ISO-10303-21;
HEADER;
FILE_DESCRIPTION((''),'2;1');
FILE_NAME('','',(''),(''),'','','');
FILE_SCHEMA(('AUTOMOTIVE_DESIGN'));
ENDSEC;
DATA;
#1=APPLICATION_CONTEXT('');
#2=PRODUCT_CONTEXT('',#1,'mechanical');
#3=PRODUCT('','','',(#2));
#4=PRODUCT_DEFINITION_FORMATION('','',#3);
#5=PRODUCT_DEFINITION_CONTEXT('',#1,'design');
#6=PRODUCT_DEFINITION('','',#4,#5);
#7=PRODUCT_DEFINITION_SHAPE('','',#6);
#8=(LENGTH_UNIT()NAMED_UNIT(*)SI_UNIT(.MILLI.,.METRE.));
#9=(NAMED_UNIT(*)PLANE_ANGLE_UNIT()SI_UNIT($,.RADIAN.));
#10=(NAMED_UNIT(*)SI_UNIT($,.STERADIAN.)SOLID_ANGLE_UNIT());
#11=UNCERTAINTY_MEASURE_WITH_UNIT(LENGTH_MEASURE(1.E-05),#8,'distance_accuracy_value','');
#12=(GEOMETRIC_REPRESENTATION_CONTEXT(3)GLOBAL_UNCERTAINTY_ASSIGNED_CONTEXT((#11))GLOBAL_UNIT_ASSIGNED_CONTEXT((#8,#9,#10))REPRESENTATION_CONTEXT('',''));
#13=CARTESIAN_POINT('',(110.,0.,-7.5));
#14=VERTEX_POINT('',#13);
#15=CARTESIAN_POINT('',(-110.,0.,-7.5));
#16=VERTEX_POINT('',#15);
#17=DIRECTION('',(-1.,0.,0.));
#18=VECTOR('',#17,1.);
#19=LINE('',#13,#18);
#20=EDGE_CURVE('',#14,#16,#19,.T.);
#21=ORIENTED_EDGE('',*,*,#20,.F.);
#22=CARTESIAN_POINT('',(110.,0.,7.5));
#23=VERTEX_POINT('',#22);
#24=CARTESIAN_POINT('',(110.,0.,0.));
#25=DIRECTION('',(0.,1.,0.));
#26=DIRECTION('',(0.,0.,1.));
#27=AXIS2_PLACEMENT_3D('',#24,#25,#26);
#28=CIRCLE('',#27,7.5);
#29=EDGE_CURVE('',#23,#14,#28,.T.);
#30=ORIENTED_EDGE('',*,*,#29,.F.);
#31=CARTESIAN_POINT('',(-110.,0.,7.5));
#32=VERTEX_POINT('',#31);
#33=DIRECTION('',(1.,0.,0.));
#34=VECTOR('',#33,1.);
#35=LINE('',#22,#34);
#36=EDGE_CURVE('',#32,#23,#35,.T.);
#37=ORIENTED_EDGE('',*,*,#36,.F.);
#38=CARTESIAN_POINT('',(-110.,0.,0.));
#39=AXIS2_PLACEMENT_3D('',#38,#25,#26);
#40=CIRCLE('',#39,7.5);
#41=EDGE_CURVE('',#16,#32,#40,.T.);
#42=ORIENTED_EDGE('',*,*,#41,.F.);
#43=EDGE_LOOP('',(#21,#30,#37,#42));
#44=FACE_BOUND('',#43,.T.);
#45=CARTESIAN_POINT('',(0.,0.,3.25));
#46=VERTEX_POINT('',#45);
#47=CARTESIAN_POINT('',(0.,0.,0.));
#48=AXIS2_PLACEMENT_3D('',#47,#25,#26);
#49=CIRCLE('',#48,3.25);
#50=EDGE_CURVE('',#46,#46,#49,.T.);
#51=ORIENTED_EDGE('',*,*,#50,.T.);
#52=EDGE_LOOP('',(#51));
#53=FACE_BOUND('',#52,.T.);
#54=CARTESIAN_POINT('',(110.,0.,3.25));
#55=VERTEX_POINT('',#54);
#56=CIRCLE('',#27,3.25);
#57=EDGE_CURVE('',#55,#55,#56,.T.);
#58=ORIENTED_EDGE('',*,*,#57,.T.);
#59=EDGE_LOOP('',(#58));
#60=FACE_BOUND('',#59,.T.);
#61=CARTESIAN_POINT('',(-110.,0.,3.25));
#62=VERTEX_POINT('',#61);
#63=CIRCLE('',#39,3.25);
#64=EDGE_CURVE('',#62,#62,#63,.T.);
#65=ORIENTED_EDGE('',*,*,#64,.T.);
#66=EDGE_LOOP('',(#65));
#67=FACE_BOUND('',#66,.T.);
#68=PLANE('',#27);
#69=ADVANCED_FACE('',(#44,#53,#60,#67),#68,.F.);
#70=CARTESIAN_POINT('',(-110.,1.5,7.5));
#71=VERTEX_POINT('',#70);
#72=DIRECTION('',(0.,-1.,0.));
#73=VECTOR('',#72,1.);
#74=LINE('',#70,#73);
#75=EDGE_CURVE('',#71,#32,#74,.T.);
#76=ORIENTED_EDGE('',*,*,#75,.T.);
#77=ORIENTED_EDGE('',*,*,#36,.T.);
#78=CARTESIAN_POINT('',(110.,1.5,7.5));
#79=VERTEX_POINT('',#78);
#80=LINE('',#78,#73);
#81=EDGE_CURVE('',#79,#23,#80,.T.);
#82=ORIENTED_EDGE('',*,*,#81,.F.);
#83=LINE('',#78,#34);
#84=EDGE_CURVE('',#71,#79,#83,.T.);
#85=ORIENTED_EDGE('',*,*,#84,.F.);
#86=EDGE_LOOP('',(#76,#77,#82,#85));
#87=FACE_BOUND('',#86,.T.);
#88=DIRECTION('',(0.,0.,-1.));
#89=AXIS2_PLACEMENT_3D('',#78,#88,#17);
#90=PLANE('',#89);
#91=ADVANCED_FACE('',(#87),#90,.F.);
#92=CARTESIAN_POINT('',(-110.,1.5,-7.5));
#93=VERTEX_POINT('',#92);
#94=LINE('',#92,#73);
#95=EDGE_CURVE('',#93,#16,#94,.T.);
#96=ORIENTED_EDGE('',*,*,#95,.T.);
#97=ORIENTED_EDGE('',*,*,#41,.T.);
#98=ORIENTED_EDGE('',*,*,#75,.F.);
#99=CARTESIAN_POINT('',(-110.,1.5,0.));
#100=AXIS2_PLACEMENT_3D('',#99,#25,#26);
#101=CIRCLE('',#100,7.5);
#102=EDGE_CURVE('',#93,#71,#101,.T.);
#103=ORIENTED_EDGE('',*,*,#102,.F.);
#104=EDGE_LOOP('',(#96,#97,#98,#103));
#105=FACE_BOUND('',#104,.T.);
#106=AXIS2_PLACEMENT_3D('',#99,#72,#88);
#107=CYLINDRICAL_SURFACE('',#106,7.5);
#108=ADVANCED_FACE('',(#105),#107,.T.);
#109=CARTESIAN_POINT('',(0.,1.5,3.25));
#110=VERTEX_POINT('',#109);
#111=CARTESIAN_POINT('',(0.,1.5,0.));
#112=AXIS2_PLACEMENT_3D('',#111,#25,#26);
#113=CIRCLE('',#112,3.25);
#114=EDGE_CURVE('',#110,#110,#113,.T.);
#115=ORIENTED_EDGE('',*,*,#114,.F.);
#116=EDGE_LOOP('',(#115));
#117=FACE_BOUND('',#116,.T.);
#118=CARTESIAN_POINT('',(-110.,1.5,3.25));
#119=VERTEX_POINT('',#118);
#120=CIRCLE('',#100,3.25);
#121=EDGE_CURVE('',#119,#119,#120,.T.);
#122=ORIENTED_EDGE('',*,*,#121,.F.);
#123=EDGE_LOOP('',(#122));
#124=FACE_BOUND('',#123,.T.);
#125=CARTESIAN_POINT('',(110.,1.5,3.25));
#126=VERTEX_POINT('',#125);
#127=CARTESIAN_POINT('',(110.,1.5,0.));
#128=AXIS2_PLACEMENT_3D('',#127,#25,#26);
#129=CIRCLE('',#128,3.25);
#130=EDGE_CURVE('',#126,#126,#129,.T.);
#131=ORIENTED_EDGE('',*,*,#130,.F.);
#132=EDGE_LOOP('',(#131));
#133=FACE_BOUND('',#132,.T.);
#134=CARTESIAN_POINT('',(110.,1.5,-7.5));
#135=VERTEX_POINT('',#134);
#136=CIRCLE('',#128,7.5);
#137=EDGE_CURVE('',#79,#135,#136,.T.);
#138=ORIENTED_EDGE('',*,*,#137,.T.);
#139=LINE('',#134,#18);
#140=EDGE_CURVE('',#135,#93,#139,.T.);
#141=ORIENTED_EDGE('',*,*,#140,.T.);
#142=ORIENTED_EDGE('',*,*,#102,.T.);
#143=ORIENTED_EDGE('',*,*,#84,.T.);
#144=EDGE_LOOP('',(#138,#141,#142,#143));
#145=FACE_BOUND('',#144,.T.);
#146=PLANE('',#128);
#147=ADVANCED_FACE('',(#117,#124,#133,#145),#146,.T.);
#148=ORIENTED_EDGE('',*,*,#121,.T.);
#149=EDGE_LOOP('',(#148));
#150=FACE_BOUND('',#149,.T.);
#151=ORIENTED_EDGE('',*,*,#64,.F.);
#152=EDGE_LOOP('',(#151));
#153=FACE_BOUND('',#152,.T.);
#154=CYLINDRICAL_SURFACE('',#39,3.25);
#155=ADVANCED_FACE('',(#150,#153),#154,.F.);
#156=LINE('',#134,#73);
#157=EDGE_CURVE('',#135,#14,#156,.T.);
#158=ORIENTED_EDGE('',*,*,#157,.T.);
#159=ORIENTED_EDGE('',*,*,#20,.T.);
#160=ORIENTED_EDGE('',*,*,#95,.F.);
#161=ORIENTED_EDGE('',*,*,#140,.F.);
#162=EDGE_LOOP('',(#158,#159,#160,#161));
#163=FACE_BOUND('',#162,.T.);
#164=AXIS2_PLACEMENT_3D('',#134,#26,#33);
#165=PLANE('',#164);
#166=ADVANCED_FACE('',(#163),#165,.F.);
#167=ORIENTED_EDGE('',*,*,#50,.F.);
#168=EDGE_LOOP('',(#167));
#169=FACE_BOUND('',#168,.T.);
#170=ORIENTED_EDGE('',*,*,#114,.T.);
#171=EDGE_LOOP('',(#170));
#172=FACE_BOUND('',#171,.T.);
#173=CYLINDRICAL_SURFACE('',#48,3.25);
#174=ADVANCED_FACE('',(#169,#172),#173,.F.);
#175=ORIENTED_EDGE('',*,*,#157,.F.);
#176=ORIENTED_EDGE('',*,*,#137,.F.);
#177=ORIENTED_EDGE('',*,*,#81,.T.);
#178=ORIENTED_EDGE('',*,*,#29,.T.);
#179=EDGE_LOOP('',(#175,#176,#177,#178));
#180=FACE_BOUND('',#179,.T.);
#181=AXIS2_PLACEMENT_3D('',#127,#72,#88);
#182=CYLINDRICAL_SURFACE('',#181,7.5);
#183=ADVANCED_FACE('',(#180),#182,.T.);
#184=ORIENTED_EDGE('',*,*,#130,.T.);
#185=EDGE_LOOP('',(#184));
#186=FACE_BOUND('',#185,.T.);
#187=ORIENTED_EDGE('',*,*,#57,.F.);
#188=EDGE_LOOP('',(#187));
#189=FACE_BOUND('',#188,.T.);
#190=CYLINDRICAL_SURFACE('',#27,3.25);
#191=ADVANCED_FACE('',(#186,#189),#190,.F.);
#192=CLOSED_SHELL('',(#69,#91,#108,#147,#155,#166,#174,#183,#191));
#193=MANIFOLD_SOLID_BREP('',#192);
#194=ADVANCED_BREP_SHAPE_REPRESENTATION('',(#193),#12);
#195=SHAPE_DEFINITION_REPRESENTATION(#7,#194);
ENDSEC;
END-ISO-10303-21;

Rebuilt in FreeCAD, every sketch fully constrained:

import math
import FreeCAD as App
import Part
import Sketcher

V = App.Vector
Q = App.Units.Quantity

doc = App.newDocument("Part")
body = doc.addObject("PartDesign::Body", "Body")

sketch1 = body.newObject("Sketcher::SketchObject", "Sketch")
sketch1.AttachmentSupport = (doc.getObject("XZ_Plane"), [""])
sketch1.MapMode = "FlatFace"
sketch1.addGeometry(Part.LineSegment(V(-110, 8, 0), V(110, 8, 0)), False)
sketch1.addGeometry(Part.ArcOfCircle(Part.Circle(V(110, 0, 0), V(0, 0, 1), 8), math.radians(-90), math.radians(90)), False)
sketch1.addGeometry(Part.LineSegment(V(110, -8, 0), V(-110, -8, 0)), False)
sketch1.addGeometry(Part.ArcOfCircle(Part.Circle(V(-110, 0, 0), V(0, 0, 1), 8), math.radians(90), math.radians(270)), False)
sketch1.addConstraint(Sketcher.Constraint("Tangent", 0, 2, 1, 2))
sketch1.addConstraint(Sketcher.Constraint("Tangent", 1, 1, 2, 1))
sketch1.addConstraint(Sketcher.Constraint("Tangent", 2, 2, 3, 2))
sketch1.addConstraint(Sketcher.Constraint("Tangent", 3, 1, 0, 1))
sketch1.addConstraint(Sketcher.Constraint("Horizontal", 0))
sketch1.addConstraint(Sketcher.Constraint("Horizontal", 2))
sketch1.addConstraint(Sketcher.Constraint("Symmetric", 1, 3, 3, 3, -1, 1))
sketch1.addConstraint(Sketcher.Constraint("Radius", 1, Q("7.5 mm")))
sketch1.addConstraint(Sketcher.Constraint("DistanceX", 0, 1, 0, 2, Q("220 mm")))
pad1 = body.newObject("PartDesign::Pad", "Pad")
pad1.Profile = sketch1
pad1.Length = 1.5
pad1.Reversed = True

sketch2 = body.newObject("Sketcher::SketchObject", "Sketch001")
sketch2.AttachmentSupport = (doc.getObject("XZ_Plane"), [""])
sketch2.MapMode = "FlatFace"
sketch2.AttachmentOffset = App.Placement(V(0, 0, -1.5), App.Rotation())
sketch2.addGeometry(Part.Circle(V(110, 0, 0), V(0, 0, 1), 3.2), False)
sketch2.addGeometry(Part.Circle(V(0, 0, 0), V(0, 0, 1), 3.2), False)
sketch2.addGeometry(Part.Circle(V(-110, 0, 0), V(0, 0, 1), 3.2), False)
sketch2.addConstraint(Sketcher.Constraint("Coincident", 1, 3, -1, 1))
sketch2.addConstraint(Sketcher.Constraint("Equal", 0, 1))
sketch2.addConstraint(Sketcher.Constraint("Equal", 1, 2))
sketch2.addConstraint(Sketcher.Constraint("Symmetric", 0, 3, 2, 3, -1, 1))
sketch2.addConstraint(Sketcher.Constraint("PointOnObject", 0, 3, -1))
sketch2.addConstraint(Sketcher.Constraint("Diameter", 0, Q("6.5 mm")))
sketch2.addConstraint(Sketcher.Constraint("DistanceX", -1, 1, 0, 3, Q("110 mm")))
pocket1 = body.newObject("PartDesign::Pocket", "Pocket")
pocket1.Profile = sketch2
pocket1.Length = 1.5
pocket1.Reversed = True

doc.recompute()
